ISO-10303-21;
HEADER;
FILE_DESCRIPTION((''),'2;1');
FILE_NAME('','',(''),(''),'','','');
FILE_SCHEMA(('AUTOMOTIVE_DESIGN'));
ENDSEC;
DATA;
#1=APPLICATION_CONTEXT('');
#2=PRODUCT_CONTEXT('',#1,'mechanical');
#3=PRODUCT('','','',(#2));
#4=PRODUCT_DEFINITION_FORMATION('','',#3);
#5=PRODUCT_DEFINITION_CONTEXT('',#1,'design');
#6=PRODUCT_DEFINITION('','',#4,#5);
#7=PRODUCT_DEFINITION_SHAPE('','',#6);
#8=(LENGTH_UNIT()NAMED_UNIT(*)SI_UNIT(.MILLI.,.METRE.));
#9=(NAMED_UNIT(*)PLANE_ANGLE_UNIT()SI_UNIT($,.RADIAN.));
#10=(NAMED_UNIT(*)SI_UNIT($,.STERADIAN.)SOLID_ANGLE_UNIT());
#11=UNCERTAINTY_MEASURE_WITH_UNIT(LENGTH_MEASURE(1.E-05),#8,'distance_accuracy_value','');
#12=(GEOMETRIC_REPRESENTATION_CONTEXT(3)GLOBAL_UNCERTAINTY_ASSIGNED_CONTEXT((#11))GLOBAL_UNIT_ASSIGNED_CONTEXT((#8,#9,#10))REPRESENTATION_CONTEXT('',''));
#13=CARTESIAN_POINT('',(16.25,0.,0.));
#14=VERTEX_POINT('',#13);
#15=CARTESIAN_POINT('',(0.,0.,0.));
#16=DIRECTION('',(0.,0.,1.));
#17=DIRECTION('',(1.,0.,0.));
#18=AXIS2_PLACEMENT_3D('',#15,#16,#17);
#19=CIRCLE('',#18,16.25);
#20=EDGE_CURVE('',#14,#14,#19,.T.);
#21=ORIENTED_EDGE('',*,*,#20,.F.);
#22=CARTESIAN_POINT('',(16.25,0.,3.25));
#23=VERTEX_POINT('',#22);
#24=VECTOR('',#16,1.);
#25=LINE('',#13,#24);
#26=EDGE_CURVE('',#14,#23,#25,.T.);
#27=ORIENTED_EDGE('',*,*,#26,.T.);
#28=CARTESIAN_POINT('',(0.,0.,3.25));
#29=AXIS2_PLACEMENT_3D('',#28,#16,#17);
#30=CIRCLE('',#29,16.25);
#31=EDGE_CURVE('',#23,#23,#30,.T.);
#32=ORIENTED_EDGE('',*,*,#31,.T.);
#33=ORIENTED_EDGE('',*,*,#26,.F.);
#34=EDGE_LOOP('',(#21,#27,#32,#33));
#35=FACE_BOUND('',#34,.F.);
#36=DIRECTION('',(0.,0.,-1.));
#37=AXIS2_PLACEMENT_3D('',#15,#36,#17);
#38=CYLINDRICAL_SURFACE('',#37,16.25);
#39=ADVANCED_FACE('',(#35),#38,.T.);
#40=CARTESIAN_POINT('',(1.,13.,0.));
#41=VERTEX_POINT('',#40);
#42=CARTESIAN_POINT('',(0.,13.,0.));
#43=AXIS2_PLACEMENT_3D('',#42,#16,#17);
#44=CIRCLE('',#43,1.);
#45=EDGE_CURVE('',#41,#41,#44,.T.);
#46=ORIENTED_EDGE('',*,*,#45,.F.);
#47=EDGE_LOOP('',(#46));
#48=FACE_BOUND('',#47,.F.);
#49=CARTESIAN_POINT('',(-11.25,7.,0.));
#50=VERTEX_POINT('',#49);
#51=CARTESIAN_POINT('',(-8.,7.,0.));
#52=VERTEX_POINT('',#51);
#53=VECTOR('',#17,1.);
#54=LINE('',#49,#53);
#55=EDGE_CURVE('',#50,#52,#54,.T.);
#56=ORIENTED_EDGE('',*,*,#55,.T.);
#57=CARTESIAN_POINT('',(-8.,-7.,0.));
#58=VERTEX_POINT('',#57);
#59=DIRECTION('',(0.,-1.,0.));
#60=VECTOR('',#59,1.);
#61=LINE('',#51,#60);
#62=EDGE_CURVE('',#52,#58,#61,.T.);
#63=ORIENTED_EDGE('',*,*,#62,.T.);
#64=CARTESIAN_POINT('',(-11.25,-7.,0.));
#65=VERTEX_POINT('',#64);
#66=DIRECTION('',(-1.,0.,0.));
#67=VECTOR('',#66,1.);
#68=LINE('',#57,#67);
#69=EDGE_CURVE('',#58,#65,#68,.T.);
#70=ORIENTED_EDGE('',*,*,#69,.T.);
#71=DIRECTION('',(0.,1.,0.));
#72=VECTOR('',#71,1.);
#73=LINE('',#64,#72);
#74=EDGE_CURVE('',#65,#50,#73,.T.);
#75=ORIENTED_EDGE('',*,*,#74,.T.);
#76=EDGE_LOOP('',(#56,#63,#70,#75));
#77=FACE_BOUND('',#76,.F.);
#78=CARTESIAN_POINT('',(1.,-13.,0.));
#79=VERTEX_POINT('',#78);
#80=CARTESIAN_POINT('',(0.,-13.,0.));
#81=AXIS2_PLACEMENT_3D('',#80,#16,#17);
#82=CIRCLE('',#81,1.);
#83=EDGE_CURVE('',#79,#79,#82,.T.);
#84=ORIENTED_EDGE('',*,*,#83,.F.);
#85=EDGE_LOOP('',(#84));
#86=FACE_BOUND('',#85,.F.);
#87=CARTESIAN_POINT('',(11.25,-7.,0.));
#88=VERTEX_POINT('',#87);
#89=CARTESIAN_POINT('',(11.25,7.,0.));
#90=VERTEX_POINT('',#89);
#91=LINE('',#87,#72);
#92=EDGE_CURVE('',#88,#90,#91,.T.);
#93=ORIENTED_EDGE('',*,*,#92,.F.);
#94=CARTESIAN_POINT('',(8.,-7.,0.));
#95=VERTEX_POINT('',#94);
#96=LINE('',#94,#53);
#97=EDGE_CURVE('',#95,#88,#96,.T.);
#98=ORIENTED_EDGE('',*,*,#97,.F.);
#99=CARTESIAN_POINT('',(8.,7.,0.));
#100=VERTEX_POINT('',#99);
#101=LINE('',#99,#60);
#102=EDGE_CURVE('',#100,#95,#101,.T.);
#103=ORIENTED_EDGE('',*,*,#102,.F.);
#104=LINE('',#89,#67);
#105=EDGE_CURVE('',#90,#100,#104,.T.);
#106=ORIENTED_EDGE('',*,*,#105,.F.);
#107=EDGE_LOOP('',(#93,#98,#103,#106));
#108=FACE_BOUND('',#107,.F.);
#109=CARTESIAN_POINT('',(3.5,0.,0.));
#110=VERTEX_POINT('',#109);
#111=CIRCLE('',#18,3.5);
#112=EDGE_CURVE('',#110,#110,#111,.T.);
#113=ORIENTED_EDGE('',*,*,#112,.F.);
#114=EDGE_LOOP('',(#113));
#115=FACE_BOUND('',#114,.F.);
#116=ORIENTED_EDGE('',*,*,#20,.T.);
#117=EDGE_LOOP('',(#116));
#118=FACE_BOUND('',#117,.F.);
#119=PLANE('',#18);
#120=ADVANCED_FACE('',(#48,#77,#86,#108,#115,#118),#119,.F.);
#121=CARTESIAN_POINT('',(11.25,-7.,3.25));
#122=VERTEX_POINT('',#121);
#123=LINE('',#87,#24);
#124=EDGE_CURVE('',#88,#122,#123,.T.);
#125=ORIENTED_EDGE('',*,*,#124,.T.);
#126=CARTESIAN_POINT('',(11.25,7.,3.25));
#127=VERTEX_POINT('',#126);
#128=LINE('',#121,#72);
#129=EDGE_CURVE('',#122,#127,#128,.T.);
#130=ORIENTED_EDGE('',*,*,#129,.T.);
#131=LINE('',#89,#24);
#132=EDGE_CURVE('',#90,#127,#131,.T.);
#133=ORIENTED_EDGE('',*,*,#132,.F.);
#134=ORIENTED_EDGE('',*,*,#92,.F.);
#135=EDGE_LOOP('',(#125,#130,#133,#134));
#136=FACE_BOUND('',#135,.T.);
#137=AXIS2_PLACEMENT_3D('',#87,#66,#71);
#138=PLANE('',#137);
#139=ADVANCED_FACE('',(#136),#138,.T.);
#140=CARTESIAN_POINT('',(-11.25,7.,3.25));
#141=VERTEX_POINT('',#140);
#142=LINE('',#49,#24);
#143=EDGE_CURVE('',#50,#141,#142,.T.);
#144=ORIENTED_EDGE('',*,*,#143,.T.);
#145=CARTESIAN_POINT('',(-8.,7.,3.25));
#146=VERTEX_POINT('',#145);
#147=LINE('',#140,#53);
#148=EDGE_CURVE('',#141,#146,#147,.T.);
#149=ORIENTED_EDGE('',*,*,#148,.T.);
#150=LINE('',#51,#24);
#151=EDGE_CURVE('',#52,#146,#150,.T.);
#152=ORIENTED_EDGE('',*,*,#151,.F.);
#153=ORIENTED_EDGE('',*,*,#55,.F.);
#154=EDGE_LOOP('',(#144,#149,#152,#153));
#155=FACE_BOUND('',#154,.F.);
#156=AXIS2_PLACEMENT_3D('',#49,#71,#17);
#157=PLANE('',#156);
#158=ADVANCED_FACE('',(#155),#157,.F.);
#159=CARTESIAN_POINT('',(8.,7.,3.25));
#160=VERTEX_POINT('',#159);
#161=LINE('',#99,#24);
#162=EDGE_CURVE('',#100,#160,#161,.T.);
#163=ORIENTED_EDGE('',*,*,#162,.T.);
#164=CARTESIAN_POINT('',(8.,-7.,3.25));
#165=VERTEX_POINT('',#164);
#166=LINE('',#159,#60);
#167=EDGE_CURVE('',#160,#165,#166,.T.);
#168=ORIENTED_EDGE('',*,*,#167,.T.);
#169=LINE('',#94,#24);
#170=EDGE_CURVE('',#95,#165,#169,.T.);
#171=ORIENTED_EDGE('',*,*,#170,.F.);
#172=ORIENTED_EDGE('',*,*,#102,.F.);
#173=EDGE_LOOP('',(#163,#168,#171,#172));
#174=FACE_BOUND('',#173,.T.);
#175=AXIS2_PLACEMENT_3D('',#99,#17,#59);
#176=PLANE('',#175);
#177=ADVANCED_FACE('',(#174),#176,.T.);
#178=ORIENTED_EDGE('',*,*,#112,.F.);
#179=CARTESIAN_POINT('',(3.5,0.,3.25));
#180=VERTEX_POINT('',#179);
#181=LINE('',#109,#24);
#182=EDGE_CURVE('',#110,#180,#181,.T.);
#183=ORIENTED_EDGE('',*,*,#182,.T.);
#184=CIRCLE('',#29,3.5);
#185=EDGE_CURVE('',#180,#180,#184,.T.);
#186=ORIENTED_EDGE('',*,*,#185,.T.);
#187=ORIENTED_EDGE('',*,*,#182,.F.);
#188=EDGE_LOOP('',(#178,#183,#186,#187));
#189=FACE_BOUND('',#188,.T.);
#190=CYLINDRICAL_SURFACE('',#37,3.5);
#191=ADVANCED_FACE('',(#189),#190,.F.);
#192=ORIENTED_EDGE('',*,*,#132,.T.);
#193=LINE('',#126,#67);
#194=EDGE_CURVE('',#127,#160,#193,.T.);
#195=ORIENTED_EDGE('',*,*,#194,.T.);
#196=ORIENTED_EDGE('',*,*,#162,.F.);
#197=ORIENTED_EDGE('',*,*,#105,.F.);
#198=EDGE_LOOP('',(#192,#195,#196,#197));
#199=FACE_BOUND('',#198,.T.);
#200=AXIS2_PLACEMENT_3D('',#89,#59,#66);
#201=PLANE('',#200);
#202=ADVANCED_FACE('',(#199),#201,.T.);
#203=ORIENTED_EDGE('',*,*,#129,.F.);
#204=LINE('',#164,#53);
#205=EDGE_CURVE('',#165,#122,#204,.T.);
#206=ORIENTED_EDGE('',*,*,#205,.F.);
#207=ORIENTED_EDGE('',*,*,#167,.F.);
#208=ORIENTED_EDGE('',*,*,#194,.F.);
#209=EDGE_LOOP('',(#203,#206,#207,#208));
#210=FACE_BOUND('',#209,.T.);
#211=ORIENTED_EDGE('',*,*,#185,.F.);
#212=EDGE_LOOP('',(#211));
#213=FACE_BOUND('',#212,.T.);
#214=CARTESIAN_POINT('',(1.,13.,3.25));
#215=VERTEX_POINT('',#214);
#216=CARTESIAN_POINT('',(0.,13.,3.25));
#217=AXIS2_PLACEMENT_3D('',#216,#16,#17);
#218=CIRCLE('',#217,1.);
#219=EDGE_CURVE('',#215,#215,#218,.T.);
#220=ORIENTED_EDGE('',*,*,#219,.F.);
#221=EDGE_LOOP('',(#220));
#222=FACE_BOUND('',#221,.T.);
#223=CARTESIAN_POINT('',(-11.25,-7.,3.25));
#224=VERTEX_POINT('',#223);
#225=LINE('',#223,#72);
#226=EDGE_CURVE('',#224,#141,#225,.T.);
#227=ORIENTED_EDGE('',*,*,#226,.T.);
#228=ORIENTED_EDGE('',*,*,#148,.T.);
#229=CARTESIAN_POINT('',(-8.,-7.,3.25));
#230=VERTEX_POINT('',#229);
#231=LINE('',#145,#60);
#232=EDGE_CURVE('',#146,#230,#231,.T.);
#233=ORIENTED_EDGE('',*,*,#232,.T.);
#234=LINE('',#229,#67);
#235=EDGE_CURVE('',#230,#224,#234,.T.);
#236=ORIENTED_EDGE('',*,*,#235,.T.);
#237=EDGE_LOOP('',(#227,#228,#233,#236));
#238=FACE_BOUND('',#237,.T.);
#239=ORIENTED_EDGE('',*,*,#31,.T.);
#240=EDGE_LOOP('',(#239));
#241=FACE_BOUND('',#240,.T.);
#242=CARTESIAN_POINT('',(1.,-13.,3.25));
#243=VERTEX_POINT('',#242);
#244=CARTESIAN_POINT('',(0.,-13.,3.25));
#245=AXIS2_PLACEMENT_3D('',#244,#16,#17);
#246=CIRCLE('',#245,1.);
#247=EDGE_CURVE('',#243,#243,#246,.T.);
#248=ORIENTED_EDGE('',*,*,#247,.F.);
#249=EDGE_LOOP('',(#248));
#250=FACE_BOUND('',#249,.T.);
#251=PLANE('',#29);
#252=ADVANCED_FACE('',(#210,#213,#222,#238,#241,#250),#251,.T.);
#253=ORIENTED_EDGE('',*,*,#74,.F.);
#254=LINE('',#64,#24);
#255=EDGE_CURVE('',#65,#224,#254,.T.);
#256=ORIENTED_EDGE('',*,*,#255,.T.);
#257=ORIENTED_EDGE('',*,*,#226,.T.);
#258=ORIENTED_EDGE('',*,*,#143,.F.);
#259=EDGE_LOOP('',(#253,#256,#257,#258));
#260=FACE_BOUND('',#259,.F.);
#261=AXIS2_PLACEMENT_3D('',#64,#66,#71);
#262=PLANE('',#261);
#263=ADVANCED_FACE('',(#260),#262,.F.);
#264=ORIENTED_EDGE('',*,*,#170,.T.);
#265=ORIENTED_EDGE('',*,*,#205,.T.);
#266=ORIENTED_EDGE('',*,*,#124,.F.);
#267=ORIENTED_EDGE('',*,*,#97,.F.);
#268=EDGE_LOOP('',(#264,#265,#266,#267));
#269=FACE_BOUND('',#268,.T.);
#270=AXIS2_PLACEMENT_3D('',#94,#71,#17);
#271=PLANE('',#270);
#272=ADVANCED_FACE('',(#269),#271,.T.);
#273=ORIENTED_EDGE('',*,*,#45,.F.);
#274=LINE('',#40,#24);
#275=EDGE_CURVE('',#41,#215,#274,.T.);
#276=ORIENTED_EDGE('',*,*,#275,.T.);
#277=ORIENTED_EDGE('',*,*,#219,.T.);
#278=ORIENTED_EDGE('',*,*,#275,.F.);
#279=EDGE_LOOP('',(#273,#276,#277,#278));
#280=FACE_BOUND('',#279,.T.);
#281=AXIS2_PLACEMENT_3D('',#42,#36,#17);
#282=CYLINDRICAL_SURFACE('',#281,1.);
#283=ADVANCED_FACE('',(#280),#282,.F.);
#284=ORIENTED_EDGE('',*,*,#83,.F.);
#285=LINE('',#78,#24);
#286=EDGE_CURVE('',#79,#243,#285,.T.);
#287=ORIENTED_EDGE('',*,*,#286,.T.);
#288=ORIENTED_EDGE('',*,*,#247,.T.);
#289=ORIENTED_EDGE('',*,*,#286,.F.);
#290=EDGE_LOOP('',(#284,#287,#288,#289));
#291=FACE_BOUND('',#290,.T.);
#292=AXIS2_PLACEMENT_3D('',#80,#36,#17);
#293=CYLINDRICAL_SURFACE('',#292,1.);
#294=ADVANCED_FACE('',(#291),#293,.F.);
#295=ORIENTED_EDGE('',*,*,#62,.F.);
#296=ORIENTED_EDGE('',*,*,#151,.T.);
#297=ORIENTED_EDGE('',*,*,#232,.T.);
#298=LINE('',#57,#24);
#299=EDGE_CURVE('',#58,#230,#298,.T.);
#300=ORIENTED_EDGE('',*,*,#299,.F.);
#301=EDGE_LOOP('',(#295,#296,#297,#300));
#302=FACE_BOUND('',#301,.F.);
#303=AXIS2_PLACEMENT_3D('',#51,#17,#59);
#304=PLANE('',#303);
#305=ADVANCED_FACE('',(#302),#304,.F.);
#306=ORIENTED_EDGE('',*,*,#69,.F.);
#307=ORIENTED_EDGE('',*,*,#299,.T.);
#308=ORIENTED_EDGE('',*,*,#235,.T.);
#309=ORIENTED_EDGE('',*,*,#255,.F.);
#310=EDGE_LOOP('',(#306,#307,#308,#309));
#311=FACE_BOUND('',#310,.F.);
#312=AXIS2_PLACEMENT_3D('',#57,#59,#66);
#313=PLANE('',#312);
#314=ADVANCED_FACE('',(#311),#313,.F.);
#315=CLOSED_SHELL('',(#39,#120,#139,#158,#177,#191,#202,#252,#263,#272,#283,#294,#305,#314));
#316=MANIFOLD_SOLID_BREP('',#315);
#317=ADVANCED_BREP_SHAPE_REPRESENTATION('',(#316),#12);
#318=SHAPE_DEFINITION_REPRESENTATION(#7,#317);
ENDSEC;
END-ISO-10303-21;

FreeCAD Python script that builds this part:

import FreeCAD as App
import Part
import Sketcher
from FreeCAD import Vector

doc = App.newDocument("Part")
body = doc.addObject("PartDesign::Body", "Body")

sketch1 = body.newObject("Sketcher::SketchObject", "Sketch")
sketch1.AttachmentSupport = (doc.getObject("XY_Plane"), [""])
sketch1.MapMode = "FlatFace"
sketch1.addGeometry(Part.Circle(Vector(0, 0, 0), Vector(0, 0, 1), 16.2), False)
sketch1.addGeometry(Part.Circle(Vector(0, -13, 0), Vector(0, 0, 1), 1), False)
sketch1.addGeometry(Part.LineSegment(Vector(-11.2, -7, 0), Vector(-11.2, 7, 0)), False)
sketch1.addGeometry(Part.LineSegment(Vector(-11.2, 7, 0), Vector(-8, 7, 0)), False)
sketch1.addGeometry(Part.LineSegment(Vector(-8, 7, 0), Vector(-8, -7, 0)), False)
sketch1.addGeometry(Part.LineSegment(Vector(-8, -7, 0), Vector(-11.2, -7, 0)), False)
sketch1.addGeometry(Part.Circle(Vector(0, 0, 0), Vector(0, 0, 1), 3.5), False)
sketch1.addGeometry(Part.LineSegment(Vector(8, 7, 0), Vector(11.2, 7, 0)), False)
sketch1.addGeometry(Part.LineSegment(Vector(11.2, 7, 0), Vector(11.2, -7, 0)), False)
sketch1.addGeometry(Part.LineSegment(Vector(11.2, -7, 0), Vector(8, -7, 0)), False)
sketch1.addGeometry(Part.LineSegment(Vector(8, -7, 0), Vector(8, 7, 0)), False)
sketch1.addGeometry(Part.Circle(Vector(0, 13, 0), Vector(0, 0, 1), 1), False)
sketch1.addConstraint(Sketcher.Constraint("Coincident", 2, 2, 3, 1))
sketch1.addConstraint(Sketcher.Constraint("Coincident", 3, 2, 4, 1))
sketch1.addConstraint(Sketcher.Constraint("Coincident", 4, 2, 5, 1))
sketch1.addConstraint(Sketcher.Constraint("Coincident", 5, 2, 2, 1))
sketch1.addConstraint(Sketcher.Constraint("Coincident", 7, 2, 8, 1))
sketch1.addConstraint(Sketcher.Constraint("Coincident", 8, 2, 9, 1))
sketch1.addConstraint(Sketcher.Constraint("Coincident", 9, 2, 10, 1))
sketch1.addConstraint(Sketcher.Constraint("Coincident", 10, 2, 7, 1))
sketch1.addConstraint(Sketcher.Constraint("Vertical", 2))
sketch1.addConstraint(Sketcher.Constraint("Horizontal", 3))
sketch1.addConstraint(Sketcher.Constraint("Vertical", 4))
sketch1.addConstraint(Sketcher.Constraint("Horizontal", 5))
sketch1.addConstraint(Sketcher.Constraint("Horizontal", 7))
sketch1.addConstraint(Sketcher.Constraint("Vertical", 8))
sketch1.addConstraint(Sketcher.Constraint("Horizontal", 9))
sketch1.addConstraint(Sketcher.Constraint("Vertical", 10))
sketch1.addConstraint(Sketcher.Constraint("Coincident", 0, 3, -1, 1))
sketch1.addConstraint(Sketcher.Constraint("Coincident", 6, 3, -1, 1))
sketch1.addConstraint(Sketcher.Constraint("Equal", 1, 11))
sketch1.addConstraint(Sketcher.Constraint("Symmetric", 1, 3, 11, 3, -1, 1))
sketch1.addConstraint(Sketcher.Constraint("Symmetric", 5, 2, 7, 2, -1, 1))
sketch1.addConstraint(Sketcher.Constraint("Symmetric", 3, 2, 9, 2, -1, 1))
sketch1.addConstraint(Sketcher.Constraint("PointOnObject", 1, 3, -2))
sketch1.addConstraint(Sketcher.Constraint("Horizontal", 3, 2, 7, 2))
sketch1.addConstraint(Sketcher.Constraint("Diameter", 1, 2.0))
sketch1.addConstraint(Sketcher.Constraint("Diameter", 6, 7.0))
sketch1.addConstraint(Sketcher.Constraint("Diameter", 0, 32.5))
sketch1.addConstraint(Sketcher.Constraint("DistanceY", 2, 1, 2, 2, 14.0))
sketch1.addConstraint(Sketcher.Constraint("DistanceX", 3, 1, 3, 2, 3.25))
sketch1.addConstraint(Sketcher.Constraint("DistanceY", 1, 3, -1, 1, 13.0))
sketch1.addConstraint(Sketcher.Constraint("DistanceX", 3, 2, -1, 1, 8.0))
pad1 = body.newObject("PartDesign::Pad", "Pad")
pad1.Profile = sketch1
pad1.Length = 3.25

doc.recompute()
